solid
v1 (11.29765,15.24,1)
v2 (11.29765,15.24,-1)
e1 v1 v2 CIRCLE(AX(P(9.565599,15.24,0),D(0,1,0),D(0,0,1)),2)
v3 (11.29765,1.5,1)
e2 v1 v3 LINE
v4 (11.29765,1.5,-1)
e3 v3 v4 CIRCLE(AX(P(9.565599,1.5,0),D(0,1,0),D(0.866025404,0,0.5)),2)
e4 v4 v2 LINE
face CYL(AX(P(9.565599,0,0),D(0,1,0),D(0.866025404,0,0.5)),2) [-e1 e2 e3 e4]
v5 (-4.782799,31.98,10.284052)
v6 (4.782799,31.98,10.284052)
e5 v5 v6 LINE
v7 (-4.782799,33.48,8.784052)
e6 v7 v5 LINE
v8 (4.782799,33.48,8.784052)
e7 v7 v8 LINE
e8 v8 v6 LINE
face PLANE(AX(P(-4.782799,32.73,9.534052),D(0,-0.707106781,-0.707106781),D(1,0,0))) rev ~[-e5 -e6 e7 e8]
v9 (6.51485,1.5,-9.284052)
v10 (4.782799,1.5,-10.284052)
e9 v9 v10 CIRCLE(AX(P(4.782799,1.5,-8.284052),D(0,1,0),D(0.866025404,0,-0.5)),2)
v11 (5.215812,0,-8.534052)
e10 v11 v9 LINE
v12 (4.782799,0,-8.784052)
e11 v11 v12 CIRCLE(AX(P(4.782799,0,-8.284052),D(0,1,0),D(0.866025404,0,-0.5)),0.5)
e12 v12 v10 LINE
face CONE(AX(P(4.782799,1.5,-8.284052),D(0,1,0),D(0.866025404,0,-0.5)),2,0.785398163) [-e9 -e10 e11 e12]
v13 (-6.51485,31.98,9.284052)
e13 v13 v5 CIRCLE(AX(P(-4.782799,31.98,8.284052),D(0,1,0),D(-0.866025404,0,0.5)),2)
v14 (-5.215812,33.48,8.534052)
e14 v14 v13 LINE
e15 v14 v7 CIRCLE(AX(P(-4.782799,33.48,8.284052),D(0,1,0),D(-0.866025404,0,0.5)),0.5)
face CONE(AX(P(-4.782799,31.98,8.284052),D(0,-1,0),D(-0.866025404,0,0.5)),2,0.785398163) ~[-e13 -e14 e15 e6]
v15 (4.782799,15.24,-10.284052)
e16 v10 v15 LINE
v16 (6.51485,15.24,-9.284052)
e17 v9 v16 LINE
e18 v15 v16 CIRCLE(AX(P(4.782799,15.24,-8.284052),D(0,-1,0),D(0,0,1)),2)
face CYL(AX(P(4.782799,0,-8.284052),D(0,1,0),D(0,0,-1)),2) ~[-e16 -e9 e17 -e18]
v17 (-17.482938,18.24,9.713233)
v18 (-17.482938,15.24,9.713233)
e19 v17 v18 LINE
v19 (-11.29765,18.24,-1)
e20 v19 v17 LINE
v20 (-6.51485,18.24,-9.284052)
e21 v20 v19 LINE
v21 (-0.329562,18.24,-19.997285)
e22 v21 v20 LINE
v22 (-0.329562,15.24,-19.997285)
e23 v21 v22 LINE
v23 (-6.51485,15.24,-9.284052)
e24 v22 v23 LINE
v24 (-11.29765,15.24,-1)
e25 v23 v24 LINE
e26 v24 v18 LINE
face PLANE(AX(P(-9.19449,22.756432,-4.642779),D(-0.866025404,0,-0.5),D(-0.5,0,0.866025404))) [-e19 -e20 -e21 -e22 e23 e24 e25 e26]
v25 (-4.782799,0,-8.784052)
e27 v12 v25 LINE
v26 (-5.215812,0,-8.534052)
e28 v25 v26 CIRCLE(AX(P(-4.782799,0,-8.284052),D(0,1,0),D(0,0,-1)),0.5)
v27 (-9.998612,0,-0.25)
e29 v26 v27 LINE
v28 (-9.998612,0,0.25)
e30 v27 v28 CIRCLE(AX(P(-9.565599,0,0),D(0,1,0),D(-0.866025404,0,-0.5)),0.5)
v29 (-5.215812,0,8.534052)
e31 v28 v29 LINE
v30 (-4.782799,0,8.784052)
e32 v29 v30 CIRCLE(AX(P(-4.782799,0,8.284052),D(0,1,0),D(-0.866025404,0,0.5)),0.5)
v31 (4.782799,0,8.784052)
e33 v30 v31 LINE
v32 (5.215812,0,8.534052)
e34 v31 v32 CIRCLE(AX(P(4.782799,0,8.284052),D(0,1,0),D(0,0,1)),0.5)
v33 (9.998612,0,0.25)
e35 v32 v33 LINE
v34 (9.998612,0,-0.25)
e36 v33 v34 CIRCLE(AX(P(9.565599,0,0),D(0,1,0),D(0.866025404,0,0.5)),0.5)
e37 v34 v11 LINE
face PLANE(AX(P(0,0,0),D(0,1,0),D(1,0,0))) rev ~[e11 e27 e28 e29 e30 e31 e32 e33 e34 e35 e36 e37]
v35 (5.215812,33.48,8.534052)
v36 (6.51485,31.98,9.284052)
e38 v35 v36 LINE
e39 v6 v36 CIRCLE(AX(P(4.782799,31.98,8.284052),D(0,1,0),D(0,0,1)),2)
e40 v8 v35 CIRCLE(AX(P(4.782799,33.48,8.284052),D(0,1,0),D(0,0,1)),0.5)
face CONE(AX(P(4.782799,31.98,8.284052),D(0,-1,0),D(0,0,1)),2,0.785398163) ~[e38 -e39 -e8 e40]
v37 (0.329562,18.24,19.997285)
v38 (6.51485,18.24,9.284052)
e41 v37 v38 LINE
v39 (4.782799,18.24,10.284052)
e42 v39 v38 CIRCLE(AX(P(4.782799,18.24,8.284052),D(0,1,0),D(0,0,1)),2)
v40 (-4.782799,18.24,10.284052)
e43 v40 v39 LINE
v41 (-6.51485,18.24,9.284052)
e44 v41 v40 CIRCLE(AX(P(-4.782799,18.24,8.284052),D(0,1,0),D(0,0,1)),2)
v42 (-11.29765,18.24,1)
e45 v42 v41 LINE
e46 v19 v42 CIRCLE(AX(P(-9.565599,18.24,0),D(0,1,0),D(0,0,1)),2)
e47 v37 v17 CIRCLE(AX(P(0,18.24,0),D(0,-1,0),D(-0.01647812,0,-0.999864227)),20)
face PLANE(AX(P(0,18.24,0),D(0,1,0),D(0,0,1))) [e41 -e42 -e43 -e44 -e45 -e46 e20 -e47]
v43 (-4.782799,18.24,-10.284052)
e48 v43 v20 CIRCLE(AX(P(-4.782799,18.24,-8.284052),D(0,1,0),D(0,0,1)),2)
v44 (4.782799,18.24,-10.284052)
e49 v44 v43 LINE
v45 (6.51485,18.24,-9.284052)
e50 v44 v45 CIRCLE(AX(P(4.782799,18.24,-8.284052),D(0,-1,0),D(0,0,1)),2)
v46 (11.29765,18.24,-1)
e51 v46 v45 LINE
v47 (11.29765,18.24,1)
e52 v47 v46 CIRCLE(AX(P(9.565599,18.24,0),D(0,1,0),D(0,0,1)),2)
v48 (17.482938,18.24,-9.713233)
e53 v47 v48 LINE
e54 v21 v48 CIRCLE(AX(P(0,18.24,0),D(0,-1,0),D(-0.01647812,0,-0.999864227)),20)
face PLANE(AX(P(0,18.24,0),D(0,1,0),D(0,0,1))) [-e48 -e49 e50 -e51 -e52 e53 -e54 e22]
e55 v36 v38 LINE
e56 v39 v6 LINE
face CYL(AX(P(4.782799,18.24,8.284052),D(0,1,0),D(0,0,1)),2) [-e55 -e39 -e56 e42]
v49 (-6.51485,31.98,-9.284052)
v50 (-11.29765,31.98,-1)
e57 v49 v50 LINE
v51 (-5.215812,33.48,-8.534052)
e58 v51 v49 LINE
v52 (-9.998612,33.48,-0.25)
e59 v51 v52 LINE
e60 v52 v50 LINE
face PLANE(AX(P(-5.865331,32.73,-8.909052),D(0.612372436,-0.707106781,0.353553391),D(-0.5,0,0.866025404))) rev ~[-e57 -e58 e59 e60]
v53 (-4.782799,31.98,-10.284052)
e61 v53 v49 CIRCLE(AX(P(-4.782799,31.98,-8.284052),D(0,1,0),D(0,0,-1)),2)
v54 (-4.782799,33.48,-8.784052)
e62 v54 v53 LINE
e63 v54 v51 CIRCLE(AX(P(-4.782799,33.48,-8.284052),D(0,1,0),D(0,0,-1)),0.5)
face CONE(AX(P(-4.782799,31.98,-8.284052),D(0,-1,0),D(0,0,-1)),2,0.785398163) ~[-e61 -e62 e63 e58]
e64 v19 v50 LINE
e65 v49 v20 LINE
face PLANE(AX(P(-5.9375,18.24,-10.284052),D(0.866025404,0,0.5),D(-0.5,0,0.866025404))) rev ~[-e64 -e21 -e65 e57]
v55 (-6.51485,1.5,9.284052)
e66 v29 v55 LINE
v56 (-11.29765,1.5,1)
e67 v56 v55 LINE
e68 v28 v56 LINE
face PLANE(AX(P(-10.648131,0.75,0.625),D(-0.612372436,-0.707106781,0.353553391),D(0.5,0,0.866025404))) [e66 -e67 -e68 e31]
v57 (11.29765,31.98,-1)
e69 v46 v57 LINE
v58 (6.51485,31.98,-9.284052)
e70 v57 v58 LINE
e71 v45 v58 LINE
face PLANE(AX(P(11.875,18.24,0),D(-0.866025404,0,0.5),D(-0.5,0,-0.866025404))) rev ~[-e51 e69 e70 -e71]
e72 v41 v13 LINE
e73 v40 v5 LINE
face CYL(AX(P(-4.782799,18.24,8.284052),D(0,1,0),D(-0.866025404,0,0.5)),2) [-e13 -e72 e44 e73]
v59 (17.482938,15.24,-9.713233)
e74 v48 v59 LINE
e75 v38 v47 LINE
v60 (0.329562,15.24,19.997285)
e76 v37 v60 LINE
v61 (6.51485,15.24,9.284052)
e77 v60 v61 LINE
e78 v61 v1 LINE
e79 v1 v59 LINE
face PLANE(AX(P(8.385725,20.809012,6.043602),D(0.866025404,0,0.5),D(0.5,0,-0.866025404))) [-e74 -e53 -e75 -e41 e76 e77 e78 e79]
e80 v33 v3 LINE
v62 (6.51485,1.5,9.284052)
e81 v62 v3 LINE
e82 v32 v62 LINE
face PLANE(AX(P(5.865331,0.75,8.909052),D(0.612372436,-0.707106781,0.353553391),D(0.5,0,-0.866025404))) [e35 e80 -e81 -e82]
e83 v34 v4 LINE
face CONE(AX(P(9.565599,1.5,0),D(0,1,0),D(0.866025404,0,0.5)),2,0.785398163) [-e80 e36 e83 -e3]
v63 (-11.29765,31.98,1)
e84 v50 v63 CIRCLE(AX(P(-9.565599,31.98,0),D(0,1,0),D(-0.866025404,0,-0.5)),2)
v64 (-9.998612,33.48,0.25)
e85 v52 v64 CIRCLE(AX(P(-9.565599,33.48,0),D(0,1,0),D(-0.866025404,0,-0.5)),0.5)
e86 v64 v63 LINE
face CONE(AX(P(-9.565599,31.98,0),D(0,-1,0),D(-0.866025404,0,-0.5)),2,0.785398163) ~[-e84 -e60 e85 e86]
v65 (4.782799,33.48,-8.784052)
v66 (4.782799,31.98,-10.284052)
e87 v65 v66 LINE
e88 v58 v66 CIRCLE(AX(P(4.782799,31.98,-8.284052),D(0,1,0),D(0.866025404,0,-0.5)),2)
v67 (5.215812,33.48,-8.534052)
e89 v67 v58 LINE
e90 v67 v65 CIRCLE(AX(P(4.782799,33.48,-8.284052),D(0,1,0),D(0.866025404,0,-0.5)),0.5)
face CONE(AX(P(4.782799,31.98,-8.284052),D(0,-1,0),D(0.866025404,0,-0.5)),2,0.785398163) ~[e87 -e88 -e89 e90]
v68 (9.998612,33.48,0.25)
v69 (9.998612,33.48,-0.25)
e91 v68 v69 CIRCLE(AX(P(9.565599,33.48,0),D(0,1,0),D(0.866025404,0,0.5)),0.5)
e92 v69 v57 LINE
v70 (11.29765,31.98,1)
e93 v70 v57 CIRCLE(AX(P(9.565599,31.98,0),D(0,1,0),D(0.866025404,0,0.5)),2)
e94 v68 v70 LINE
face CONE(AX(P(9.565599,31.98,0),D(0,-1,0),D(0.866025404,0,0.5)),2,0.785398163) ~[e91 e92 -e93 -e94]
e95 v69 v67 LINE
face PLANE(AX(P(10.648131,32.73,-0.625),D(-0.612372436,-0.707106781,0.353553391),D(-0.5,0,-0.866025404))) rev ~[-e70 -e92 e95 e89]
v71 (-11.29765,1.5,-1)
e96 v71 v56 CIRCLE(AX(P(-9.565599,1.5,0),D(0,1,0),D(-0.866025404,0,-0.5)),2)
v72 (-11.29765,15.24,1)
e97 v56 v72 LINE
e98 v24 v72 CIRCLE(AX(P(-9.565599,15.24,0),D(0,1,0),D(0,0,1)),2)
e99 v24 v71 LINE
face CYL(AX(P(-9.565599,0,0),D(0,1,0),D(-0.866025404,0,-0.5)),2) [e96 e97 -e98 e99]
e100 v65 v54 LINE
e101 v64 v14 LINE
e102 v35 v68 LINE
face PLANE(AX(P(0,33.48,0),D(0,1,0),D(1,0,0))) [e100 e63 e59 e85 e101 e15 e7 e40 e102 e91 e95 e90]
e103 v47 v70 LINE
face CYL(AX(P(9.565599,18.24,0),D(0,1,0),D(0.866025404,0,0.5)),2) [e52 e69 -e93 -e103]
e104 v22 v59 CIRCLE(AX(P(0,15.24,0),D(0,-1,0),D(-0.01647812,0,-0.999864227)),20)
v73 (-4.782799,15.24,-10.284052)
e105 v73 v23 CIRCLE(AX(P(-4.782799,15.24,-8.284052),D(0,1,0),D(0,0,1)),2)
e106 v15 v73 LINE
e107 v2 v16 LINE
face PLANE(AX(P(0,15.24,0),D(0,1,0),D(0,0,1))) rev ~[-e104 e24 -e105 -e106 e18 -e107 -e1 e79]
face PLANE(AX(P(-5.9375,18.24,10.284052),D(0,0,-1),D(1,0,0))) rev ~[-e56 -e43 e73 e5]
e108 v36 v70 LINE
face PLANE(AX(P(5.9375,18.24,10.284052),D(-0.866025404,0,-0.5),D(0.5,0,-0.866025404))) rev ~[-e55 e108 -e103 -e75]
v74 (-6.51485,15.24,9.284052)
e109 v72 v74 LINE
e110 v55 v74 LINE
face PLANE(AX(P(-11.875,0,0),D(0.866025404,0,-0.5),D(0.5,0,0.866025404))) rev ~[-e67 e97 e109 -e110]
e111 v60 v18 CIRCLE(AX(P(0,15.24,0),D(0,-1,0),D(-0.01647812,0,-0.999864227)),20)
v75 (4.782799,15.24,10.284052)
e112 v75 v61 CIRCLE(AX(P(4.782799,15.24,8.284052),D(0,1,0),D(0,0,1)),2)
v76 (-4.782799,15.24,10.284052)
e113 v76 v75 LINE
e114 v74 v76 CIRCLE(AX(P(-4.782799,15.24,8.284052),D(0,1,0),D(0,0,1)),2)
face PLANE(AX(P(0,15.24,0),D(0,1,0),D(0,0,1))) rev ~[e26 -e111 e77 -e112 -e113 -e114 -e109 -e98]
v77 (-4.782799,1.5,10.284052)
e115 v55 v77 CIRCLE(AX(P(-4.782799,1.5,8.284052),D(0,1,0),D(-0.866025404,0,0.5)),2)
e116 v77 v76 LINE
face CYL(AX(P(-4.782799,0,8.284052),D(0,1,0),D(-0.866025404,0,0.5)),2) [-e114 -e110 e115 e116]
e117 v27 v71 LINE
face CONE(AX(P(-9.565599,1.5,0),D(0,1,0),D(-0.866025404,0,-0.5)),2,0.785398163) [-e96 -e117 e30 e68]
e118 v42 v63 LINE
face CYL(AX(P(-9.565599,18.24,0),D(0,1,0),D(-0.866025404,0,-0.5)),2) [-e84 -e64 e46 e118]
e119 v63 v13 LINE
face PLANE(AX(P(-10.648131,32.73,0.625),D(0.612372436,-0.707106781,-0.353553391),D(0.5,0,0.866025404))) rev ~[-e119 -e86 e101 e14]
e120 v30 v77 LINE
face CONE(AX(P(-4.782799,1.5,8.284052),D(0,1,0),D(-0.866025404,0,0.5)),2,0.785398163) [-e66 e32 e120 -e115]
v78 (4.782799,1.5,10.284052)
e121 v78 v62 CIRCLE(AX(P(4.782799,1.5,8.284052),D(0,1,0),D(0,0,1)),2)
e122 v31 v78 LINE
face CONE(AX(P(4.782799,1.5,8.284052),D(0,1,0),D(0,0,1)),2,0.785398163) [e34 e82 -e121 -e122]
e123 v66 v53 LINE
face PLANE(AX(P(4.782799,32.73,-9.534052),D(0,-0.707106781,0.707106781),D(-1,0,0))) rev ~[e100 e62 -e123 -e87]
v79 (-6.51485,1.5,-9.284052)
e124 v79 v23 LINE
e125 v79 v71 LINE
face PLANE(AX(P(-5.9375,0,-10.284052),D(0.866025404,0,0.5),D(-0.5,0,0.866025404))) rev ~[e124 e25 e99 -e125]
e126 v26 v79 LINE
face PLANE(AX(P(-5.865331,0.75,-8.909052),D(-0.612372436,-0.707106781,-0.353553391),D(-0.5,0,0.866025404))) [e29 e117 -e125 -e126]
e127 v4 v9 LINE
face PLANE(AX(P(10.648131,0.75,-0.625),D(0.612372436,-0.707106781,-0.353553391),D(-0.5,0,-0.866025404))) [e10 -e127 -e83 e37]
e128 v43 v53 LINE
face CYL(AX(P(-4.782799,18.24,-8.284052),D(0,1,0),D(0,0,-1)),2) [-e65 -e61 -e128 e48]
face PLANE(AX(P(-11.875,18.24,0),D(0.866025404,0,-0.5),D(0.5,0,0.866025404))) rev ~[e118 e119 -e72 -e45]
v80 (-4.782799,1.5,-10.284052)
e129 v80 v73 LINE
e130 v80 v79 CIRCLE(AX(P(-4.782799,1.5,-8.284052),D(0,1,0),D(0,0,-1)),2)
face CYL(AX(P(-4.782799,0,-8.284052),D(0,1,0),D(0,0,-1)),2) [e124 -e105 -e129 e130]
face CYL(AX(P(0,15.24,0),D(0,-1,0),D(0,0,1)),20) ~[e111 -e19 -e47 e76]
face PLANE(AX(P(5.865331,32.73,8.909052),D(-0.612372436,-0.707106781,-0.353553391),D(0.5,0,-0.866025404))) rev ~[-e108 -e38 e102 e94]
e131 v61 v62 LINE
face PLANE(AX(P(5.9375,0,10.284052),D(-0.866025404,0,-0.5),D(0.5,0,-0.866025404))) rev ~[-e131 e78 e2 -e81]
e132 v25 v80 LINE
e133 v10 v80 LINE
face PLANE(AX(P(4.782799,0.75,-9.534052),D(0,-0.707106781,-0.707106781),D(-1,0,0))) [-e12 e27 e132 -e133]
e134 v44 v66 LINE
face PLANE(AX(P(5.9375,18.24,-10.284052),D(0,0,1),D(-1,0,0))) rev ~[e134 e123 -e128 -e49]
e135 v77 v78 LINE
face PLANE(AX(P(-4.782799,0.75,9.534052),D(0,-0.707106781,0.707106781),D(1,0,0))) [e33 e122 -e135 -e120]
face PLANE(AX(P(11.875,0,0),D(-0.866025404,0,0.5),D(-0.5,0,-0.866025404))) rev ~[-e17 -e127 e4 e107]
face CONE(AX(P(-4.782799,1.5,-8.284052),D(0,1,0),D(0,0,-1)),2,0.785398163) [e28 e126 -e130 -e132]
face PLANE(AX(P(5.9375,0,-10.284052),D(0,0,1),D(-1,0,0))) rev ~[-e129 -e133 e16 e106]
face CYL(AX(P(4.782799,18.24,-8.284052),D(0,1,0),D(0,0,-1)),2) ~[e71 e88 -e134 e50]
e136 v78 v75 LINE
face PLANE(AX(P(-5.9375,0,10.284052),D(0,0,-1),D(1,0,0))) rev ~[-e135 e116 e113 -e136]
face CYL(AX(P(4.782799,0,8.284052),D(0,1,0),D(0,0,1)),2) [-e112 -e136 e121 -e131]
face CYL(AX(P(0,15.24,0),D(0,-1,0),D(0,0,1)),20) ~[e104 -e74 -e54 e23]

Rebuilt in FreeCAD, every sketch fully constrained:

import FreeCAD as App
import Part
import Sketcher
Q = App.Units.Quantity


def edges_at(feature, points):
    """Names of the edges that pass closest to the given points."""
    edges = feature.Shape.Edges
    near = lambda p: min(range(len(edges)), key=lambda i: edges[i].distToShape(Part.Vertex(*p))[0])
    return sorted({f"Edge{near(p) + 1}" for p in points})

doc = App.newDocument("Part")
body = doc.addObject("PartDesign::Body", "Body")

sketch1 = body.newObject("Sketcher::SketchObject", "Sketch")
sketch1.AttachmentSupport = (doc.getObject("XZ_Plane"), [""])
sketch1.MapMode = "FlatFace"
sketch1.addGeometry(Part.LineSegment(App.Vector(5.9375, -10.284052, 0), App.Vector(-5.9375, -10.284052, 0)), False)
sketch1.addGeometry(Part.LineSegment(App.Vector(-5.9375, -10.284052, 0), App.Vector(-11.875, 0, 0)), False)
sketch1.addGeometry(Part.LineSegment(App.Vector(-11.875, 0, 0), App.Vector(-5.9375, 10.284052, 0)), False)
sketch1.addGeometry(Part.LineSegment(App.Vector(-5.9375, 10.284052, 0), App.Vector(5.9375, 10.284052, 0)), False)
sketch1.addGeometry(Part.LineSegment(App.Vector(5.9375, 10.284052, 0), App.Vector(11.875, 0, 0)), False)
sketch1.addGeometry(Part.LineSegment(App.Vector(11.875, 0, 0), App.Vector(5.9375, -10.284052, 0)), False)
sketch1.addConstraint(Sketcher.Constraint("Coincident", 0, 2, 1, 1))
sketch1.addConstraint(Sketcher.Constraint("Coincident", 1, 2, 2, 1))
sketch1.addConstraint(Sketcher.Constraint("Coincident", 2, 2, 3, 1))
sketch1.addConstraint(Sketcher.Constraint("Coincident", 3, 2, 4, 1))
sketch1.addConstraint(Sketcher.Constraint("Coincident", 4, 2, 5, 1))
sketch1.addConstraint(Sketcher.Constraint("Coincident", 5, 2, 0, 1))
sketch1.addConstraint(Sketcher.Constraint("Horizontal", 0))
sketch1.addConstraint(Sketcher.Constraint("Horizontal", 3))
sketch1.addConstraint(Sketcher.Constraint("Symmetric", 0, 2, 3, 2, -1, 1))
sketch1.addConstraint(Sketcher.Constraint("Symmetric", 1, 2, 4, 2, -1, 1))
sketch1.addConstraint(Sketcher.Constraint("PointOnObject", 1, 2, -1))
sketch1.addConstraint(Sketcher.Constraint("Parallel", 2, 5))
sketch1.addConstraint(Sketcher.Constraint("Vertical", 0, 2, 2, 2))
sketch1.addConstraint(Sketcher.Constraint("Angle", 1, Q("120 deg")))
sketch1.addConstraint(Sketcher.Constraint("DistanceX", 0, 2, 0, 1, 11.875))
sketch1.addConstraint(Sketcher.Constraint("DistanceX", 1, 2, 4, 2, 23.75))
pad1 = body.newObject("PartDesign::Pad", "Pad")
pad1.Profile = sketch1
pad1.Length = 15.24
pad1.Reversed = True

sketch2 = body.newObject("Sketcher::SketchObject", "Sketch001")
sketch2.AttachmentSupport = (doc.getObject("XZ_Plane"), [""])
sketch2.MapMode = "FlatFace"
sketch2.AttachmentOffset = App.Placement(App.Vector(0, 0, -15.24), App.Rotation())
sketch2.addGeometry(Part.Circle(App.Vector(0, 0, 0), App.Vector(0, 0, 1), 20), False)
sketch2.addConstraint(Sketcher.Constraint("Coincident", 0, 3, -1, 1))
sketch2.addConstraint(Sketcher.Constraint("Diameter", 0, 40.0))
pad2 = body.newObject("PartDesign::Pad", "Pad001")
pad2.Profile = sketch2
pad2.Length = 3
pad2.Reversed = True

sketch3 = body.newObject("Sketcher::SketchObject", "Sketch002")
sketch3.AttachmentSupport = (doc.getObject("XZ_Plane"), [""])
sketch3.MapMode = "FlatFace"
sketch3.AttachmentOffset = App.Placement(App.Vector(0, 0, -18.24), App.Rotation())
sketch3.addGeometry(Part.LineSegment(App.Vector(5.9375, -10.284052, 0), App.Vector(-5.9375, -10.284052, 0)), False)
sketch3.addGeometry(Part.LineSegment(App.Vector(-5.9375, -10.284052, 0), App.Vector(-11.875, 0, 0)), False)
sketch3.addGeometry(Part.LineSegment(App.Vector(-11.875, 0, 0), App.Vector(-5.9375, 10.284052, 0)), False)
sketch3.addGeometry(Part.LineSegment(App.Vector(-5.9375, 10.284052, 0), App.Vector(5.9375, 10.284052, 0)), False)
sketch3.addGeometry(Part.LineSegment(App.Vector(5.9375, 10.284052, 0), App.Vector(11.875, 0, 0)), False)
sketch3.addGeometry(Part.LineSegment(App.Vector(11.875, 0, 0), App.Vector(5.9375, -10.284052, 0)), False)
sketch3.addConstraint(Sketcher.Constraint("Coincident", 0, 2, 1, 1))
sketch3.addConstraint(Sketcher.Constraint("Coincident", 1, 2, 2, 1))
sketch3.addConstraint(Sketcher.Constraint("Coincident", 2, 2, 3, 1))
sketch3.addConstraint(Sketcher.Constraint("Coincident", 3, 2, 4, 1))
sketch3.addConstraint(Sketcher.Constraint("Coincident", 4, 2, 5, 1))
sketch3.addConstraint(Sketcher.Constraint("Coincident", 5, 2, 0, 1))
sketch3.addConstraint(Sketcher.Constraint("Horizontal", 0))
sketch3.addConstraint(Sketcher.Constraint("Horizontal", 3))
sketch3.addConstraint(Sketcher.Constraint("Symmetric", 0, 2, 3, 2, -1, 1))
sketch3.addConstraint(Sketcher.Constraint("Symmetric", 1, 2, 4, 2, -1, 1))
sketch3.addConstraint(Sketcher.Constraint("PointOnObject", 1, 2, -1))
sketch3.addConstraint(Sketcher.Constraint("Parallel", 2, 5))
sketch3.addConstraint(Sketcher.Constraint("Vertical", 0, 2, 2, 2))
sketch3.addConstraint(Sketcher.Constraint("Angle", 1, Q("120 deg")))
sketch3.addConstraint(Sketcher.Constraint("DistanceX", 0, 2, 0, 1, 11.875))
sketch3.addConstraint(Sketcher.Constraint("DistanceX", 1, 2, 4, 2, 23.75))
pad3 = body.newObject("PartDesign::Pad", "Pad002")
pad3.Profile = sketch3
pad3.Length = 15.24
pad3.Reversed = True
doc.recompute()

fillet = body.newObject("PartDesign::Fillet", "Fillet")
fillet.Base = (pad3, edges_at(pad3, [
    (11.875, 7.62, 0),
    (5.938, 7.62, 10.284),
    (-5.938, 7.62, 10.284),
    (-11.875, 7.62, 0),
    (-5.938, 7.62, -10.284),
    (5.938, 7.62, -10.284),
    (-5.938, 25.86, 10.284),
    (5.938, 25.86, 10.284),
    (11.875, 25.86, 0),
    (5.938, 25.86, -10.284),
    (-5.938, 25.86, -10.284),
    (-11.875, 25.86, 0),
]))
fillet.Radius = 2

sketch4 = body.newObject("Sketcher::SketchObject", "Sketch003")
sketch4.Placement = App.Placement(App.Vector(-8.90625, 0, -5.142026), App.Rotation(App.Vector(-0.5, 0, 0.866025404), App.Vector(0, 1, 0), App.Vector(-0.866025404, 0, -0.5), "ZXY"))
sketch4.addGeometry(Part.LineSegment(App.Vector(-17.368327, 33.443496, 0), App.Vector(-17.368327, 12.069368, 0)), False)
sketch4.addGeometry(Part.LineSegment(App.Vector(-17.368327, 12.069368, 0), App.Vector(18.521288, 12.069368, 0)), False)
sketch4.addGeometry(Part.LineSegment(App.Vector(18.521288, 12.069368, 0), App.Vector(18.521288, 33.443496, 0)), False)
sketch4.addGeometry(Part.LineSegment(App.Vector(18.521288, 33.443496, 0), App.Vector(-17.368327, 33.443496, 0)), False)
sketch4.addConstraint(Sketcher.Constraint("Coincident", 0, 2, 1, 1))
sketch4.addConstraint(Sketcher.Constraint("Coincident", 1, 2, 2, 1))
sketch4.addConstraint(Sketcher.Constraint("Coincident", 2, 2, 3, 1))
sketch4.addConstraint(Sketcher.Constraint("Coincident", 3, 2, 0, 1))
sketch4.addConstraint(Sketcher.Constraint("Vertical", 0))
sketch4.addConstraint(Sketcher.Constraint("Horizontal", 1))
sketch4.addConstraint(Sketcher.Constraint("Vertical", 2))
sketch4.addConstraint(Sketcher.Constraint("Horizontal", 3))
sketch4.addConstraint(Sketcher.Constraint("DistanceY", 0, 2, 0, 1, 21.374128))
sketch4.addConstraint(Sketcher.Constraint("DistanceX", 1, 1, 1, 2, 35.889615))
sketch4.addConstraint(Sketcher.Constraint("DistanceY", -1, 1, 0, 2, 12.069368))
sketch4.addConstraint(Sketcher.Constraint("DistanceX", -1, 1, 1, 2, 18.521288))
pocket1 = body.newObject("PartDesign::Pocket", "Pocket")
pocket1.Profile = sketch4
pocket1.Type = "ThroughAll"
pocket1.Reversed = True
doc.recompute()

chamfer = body.newObject("PartDesign::Chamfer", "Chamfer")
chamfer.Base = (pocket1, edges_at(pocket1, [
    (0, 0, -10.284),
    (8.906, 0, -5.142),
    (8.906, 0, 5.142),
    (0, 0, 10.284),
    (-8.906, 0, 5.142),
    (-8.906, 0, -5.142),
    (11.566, 0, 0),
    (5.783, 0, 10.016),
    (-5.783, 0, 10.016),
    (-11.566, 0, 0),
    (-5.783, 0, -10.016),
    (5.783, 0, -10.016),
    (0, 33.48, -10.284),
    (8.906, 33.48, -5.142),
    (0, 33.48, 10.284),
    (8.906, 33.48, 5.142),
    (-8.906, 33.48, -5.142),
    (-8.906, 33.48, 5.142),
    (11.566, 33.48, 0),
    (5.783, 33.48, 10.016),
    (-5.783, 33.48, 10.016),
    (-11.566, 33.48, 0),
    (-5.783, 33.48, -10.016),
    (5.783, 33.48, -10.016),
]))
chamfer.Size = 1.5

sketch5 = body.newObject("Sketcher::SketchObject", "Sketch004")
sketch5.Placement = App.Placement(App.Vector(8.90625, 0, 5.142026), App.Rotation(App.Vector(0.5, 0, -0.866025404), App.Vector(0, 1, 0), App.Vector(0.866025404, 0, 0.5), "ZXY"))
sketch5.addGeometry(Part.LineSegment(App.Vector(-26.760955, 28.772525, 0), App.Vector(-26.760955, 12.845499, 0)), False)
sketch5.addGeometry(Part.LineSegment(App.Vector(-26.760955, 12.845499, 0), App.Vector(24.678855, 12.845499, 0)), False)
sketch5.addGeometry(Part.LineSegment(App.Vector(24.678855, 12.845499, 0), App.Vector(24.678855, 28.772525, 0)), False)
sketch5.addGeometry(Part.LineSegment(App.Vector(24.678855, 28.772525, 0), App.Vector(-26.760955, 28.772525, 0)), False)
sketch5.addConstraint(Sketcher.Constraint("Coincident", 0, 2, 1, 1))
sketch5.addConstraint(Sketcher.Constraint("Coincident", 1, 2, 2, 1))
sketch5.addConstraint(Sketcher.Constraint("Coincident", 2, 2, 3, 1))
sketch5.addConstraint(Sketcher.Constraint("Coincident", 3, 2, 0, 1))
sketch5.addConstraint(Sketcher.Constraint("Vertical", 0))
sketch5.addConstraint(Sketcher.Constraint("Horizontal", 1))
sketch5.addConstraint(Sketcher.Constraint("Vertical", 2))
sketch5.addConstraint(Sketcher.Constraint("Horizontal", 3))
sketch5.addConstraint(Sketcher.Constraint("DistanceX", 1, 1, 1, 2, 51.43981))
sketch5.addConstraint(Sketcher.Constraint("DistanceY", -1, 1, 0, 2, 12.845499))
sketch5.addConstraint(Sketcher.Constraint("DistanceY", 0, 2, 0, 1, 15.927026))
sketch5.addConstraint(Sketcher.Constraint("DistanceX", 0, 2, -1, 1, 26.760955))
pocket2 = body.newObject("PartDesign::Pocket", "Pocket001")
pocket2.Profile = sketch5
pocket2.Type = "ThroughAll"
pocket2.Reversed = True

doc.recompute()
